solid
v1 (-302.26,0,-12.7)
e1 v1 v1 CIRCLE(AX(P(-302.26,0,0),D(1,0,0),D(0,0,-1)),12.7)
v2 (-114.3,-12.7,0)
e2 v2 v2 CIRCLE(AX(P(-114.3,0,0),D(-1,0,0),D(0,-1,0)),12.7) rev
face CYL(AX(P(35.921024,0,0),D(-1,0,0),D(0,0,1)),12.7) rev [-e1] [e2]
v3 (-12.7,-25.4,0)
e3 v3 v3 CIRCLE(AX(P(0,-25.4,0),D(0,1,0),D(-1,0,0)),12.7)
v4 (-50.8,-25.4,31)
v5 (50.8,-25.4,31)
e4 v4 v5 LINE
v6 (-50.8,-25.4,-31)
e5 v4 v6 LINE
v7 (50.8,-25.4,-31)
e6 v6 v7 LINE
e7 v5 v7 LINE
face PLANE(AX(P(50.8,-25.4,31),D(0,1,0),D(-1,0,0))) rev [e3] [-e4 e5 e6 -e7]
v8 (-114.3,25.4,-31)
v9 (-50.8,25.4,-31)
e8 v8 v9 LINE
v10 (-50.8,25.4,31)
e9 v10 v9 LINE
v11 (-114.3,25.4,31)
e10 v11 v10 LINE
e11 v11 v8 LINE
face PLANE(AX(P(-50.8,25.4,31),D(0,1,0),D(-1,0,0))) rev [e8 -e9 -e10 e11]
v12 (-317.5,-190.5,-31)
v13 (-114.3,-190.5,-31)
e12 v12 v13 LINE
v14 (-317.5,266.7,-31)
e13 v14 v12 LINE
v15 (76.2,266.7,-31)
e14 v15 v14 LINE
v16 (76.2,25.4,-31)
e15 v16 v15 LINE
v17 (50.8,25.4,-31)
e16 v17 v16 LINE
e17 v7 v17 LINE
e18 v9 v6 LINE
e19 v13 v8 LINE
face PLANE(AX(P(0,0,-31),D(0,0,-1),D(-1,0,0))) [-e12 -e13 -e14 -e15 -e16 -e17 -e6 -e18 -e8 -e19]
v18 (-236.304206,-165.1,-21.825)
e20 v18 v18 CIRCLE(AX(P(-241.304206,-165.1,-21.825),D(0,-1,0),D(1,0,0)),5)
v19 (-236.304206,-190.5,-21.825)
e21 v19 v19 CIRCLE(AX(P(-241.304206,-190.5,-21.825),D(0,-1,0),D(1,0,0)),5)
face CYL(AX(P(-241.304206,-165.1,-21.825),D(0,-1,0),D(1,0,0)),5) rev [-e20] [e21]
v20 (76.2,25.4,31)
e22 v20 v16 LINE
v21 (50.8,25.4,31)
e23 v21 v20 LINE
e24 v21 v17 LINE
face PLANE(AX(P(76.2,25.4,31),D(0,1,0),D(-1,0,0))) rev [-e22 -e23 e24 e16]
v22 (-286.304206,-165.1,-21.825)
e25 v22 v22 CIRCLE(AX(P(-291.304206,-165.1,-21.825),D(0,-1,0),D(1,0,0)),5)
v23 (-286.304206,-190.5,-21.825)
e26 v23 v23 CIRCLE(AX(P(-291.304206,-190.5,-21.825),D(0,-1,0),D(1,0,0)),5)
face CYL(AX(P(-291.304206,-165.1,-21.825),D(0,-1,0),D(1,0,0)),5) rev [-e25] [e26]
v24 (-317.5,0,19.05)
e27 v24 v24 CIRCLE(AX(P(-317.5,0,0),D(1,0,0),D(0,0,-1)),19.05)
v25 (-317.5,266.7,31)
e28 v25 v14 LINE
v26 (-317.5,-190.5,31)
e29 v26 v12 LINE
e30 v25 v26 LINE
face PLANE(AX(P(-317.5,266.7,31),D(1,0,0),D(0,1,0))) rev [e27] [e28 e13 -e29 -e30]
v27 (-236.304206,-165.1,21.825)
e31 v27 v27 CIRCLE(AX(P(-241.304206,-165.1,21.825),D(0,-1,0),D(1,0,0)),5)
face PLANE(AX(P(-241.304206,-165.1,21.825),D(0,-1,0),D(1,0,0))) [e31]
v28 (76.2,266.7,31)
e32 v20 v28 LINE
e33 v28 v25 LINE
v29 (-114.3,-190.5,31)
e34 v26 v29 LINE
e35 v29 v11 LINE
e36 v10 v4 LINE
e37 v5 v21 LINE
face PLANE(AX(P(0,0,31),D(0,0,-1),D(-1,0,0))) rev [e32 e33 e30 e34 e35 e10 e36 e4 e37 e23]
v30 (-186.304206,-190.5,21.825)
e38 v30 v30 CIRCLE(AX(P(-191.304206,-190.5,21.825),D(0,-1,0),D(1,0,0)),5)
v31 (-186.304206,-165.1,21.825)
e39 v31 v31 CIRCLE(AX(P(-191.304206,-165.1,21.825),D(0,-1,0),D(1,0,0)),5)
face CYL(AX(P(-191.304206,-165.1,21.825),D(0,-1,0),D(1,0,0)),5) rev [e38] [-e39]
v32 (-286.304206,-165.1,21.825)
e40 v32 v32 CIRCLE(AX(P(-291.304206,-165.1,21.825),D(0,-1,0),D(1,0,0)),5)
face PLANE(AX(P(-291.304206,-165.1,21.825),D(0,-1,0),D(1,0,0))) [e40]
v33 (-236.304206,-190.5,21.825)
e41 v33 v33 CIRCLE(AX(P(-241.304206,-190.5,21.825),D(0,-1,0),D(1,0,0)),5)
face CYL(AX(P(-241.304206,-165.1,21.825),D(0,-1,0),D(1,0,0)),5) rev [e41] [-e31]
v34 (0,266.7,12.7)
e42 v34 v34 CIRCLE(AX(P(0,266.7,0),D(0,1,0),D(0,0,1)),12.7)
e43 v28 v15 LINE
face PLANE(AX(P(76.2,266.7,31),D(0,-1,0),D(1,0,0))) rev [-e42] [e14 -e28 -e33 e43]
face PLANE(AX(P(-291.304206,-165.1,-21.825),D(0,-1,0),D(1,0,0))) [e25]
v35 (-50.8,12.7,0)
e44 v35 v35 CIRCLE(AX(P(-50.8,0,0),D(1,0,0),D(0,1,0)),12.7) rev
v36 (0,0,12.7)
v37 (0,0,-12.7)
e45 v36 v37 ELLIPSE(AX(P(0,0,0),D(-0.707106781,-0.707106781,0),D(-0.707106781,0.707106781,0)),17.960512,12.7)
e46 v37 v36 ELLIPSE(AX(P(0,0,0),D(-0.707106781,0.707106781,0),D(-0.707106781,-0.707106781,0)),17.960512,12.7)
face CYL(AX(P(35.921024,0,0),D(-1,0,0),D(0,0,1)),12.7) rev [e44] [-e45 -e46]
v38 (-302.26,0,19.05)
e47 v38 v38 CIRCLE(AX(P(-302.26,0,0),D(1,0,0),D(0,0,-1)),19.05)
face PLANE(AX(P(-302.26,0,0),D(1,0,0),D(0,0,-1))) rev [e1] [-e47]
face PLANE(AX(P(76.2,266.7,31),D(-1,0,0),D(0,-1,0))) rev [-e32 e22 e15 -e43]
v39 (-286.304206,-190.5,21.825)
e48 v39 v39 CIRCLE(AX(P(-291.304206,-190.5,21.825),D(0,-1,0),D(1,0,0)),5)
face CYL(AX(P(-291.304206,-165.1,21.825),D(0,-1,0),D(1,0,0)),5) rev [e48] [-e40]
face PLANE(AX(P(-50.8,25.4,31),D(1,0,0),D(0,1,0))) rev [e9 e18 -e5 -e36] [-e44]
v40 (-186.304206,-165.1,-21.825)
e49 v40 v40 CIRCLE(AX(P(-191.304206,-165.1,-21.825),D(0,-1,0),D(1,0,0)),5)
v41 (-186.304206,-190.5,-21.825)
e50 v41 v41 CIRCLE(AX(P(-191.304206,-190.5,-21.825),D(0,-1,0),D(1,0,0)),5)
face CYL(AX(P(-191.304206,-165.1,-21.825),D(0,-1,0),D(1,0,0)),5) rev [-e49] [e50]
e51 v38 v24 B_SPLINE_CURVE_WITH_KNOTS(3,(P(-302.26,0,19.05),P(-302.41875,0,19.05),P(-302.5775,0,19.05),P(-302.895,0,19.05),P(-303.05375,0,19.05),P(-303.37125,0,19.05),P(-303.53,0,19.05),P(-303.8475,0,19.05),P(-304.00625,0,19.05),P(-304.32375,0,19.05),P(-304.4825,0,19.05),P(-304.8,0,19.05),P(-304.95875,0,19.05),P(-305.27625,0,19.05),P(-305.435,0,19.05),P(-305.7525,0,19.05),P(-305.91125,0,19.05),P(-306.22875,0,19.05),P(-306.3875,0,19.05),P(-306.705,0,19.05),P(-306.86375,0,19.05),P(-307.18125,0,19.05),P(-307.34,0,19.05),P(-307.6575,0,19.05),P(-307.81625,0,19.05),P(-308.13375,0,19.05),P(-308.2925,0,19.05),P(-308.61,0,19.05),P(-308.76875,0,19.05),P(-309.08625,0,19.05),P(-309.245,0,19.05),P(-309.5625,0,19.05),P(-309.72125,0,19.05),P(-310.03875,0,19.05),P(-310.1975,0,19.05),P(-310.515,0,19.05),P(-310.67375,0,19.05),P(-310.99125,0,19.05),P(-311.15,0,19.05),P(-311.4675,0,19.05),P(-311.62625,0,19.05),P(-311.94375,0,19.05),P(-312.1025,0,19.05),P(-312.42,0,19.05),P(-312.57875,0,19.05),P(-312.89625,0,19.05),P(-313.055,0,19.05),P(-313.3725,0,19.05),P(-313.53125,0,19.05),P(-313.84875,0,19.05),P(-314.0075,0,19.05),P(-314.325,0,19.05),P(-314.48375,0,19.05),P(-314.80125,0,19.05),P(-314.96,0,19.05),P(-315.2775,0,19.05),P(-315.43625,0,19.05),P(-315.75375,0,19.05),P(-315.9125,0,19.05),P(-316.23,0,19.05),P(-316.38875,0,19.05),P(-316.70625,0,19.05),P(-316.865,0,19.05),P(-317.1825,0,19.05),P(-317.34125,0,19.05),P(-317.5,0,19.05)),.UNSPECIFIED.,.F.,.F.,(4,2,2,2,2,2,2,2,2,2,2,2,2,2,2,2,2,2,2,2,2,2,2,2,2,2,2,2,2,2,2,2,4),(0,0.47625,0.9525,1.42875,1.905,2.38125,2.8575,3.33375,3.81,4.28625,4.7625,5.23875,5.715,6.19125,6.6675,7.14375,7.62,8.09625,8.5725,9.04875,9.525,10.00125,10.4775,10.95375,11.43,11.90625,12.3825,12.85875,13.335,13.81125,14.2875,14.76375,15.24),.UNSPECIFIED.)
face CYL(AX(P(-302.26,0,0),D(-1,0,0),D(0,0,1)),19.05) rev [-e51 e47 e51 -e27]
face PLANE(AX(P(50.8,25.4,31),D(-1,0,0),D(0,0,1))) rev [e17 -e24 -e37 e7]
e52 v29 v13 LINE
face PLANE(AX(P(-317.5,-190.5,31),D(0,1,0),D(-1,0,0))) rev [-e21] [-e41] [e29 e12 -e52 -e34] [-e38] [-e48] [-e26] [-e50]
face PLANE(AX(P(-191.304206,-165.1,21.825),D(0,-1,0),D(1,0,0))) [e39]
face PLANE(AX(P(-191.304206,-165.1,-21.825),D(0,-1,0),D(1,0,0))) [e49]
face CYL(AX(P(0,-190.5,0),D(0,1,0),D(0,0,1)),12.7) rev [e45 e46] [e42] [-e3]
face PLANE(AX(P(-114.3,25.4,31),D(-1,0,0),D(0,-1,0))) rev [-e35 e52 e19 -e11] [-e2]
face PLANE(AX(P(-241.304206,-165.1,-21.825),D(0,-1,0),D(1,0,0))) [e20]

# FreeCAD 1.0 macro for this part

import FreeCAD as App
import Part
import Sketcher
from FreeCAD import Vector
Q = App.Units.Quantity

doc = App.newDocument("Part")
body = doc.addObject("PartDesign::Body", "Body")

sketch1 = body.newObject("Sketcher::SketchObject", "Sketch")
sketch1.AttachmentSupport = (doc.getObject("XY_Plane"), [""])
sketch1.MapMode = "FlatFace"
sketch1.addGeometry([
    Part.LineSegment(Vector(76, 267, 0), Vector(-318, 267, 0)),
    Part.LineSegment(Vector(-318, 267, 0), Vector(-318, -190, 0)),
    Part.LineSegment(Vector(-318, -190, 0), Vector(-114, -190, 0)),
    Part.LineSegment(Vector(-114, -190, 0), Vector(-114, 25, 0)),
    Part.LineSegment(Vector(-114, 25, 0), Vector(-51, 25, 0)),
    Part.LineSegment(Vector(-51, 25, 0), Vector(-51, -25, 0)),
    Part.LineSegment(Vector(-51, -25, 0), Vector(51, -25, 0)),
    Part.LineSegment(Vector(51, -25, 0), Vector(51, 25, 0)),
    Part.LineSegment(Vector(51, 25, 0), Vector(76, 25, 0)),
    Part.LineSegment(Vector(76, 25, 0), Vector(76, 267, 0)),
], False)
sketch1.addConstraint([
    Sketcher.Constraint("Coincident", 0, 2, 1, 1),
    Sketcher.Constraint("Coincident", 1, 2, 2, 1),
    Sketcher.Constraint("Coincident", 2, 2, 3, 1),
    Sketcher.Constraint("Coincident", 3, 2, 4, 1),
    Sketcher.Constraint("Coincident", 4, 2, 5, 1),
    Sketcher.Constraint("Coincident", 5, 2, 6, 1),
    Sketcher.Constraint("Coincident", 6, 2, 7, 1),
    Sketcher.Constraint("Coincident", 7, 2, 8, 1),
    Sketcher.Constraint("Coincident", 8, 2, 9, 1),
    Sketcher.Constraint("Coincident", 9, 2, 0, 1),
    Sketcher.Constraint("Horizontal", 0),
    Sketcher.Constraint("Vertical", 1),
    Sketcher.Constraint("Horizontal", 2),
    Sketcher.Constraint("Vertical", 3),
    Sketcher.Constraint("Horizontal", 4),
    Sketcher.Constraint("Vertical", 5),
    Sketcher.Constraint("Horizontal", 6),
    Sketcher.Constraint("Vertical", 7),
    Sketcher.Constraint("Horizontal", 8),
    Sketcher.Constraint("Vertical", 9),
    Sketcher.Constraint("Symmetric", 4, 2, 6, 2, -1, 1),
    Sketcher.Constraint("Horizontal", 4, 2, 7, 2),
    Sketcher.Constraint("DistanceX", 2, 1, 2, 2, Q("8 in")),
    Sketcher.Constraint("DistanceX", 6, 1, 6, 2, Q("4 in")),
    Sketcher.Constraint("DistanceX", 8, 1, 8, 2, Q("1 in")),
    Sketcher.Constraint("DistanceY", 1, 2, 1, 1, Q("18 in")),
    Sketcher.Constraint("DistanceY", 5, 2, 5, 1, Q("2 in")),
    Sketcher.Constraint("DistanceX", 0, 2, 0, 1, Q("15.5 in")),
    Sketcher.Constraint("DistanceY", 3, 1, 3, 2, Q("8.5 in")),
])
pad1 = body.newObject("PartDesign::Pad", "Pad")
pad1.Profile = sketch1
pad1.Length = 62
pad1.Midplane = True

sketch2 = body.newObject("Sketcher::SketchObject", "Sketch001")
sketch2.AttachmentSupport = (doc.getObject("YZ_Plane"), [""])
sketch2.MapMode = "FlatFace"
sketch2.AttachmentOffset = App.Placement(Vector(0, 0, -12.5 * 25.4), App.Rotation())
sketch2.addGeometry(Part.Circle(Vector(0, 0, 0), Vector(0, 0, 1), 13), False)
sketch2.addConstraint([
    Sketcher.Constraint("Coincident", 0, 3, -1, 1),
    Sketcher.Constraint("Diameter", 0, Q("1 in")),
])
pocket1 = body.newObject("PartDesign::Pocket", "Pocket")
pocket1.Profile = sketch2
pocket1.Length = Q("12.5 in")
pocket1.Reversed = True

sketch3 = body.newObject("Sketcher::SketchObject", "Sketch002")
sketch3.AttachmentSupport = (doc.getObject("XZ_Plane"), [""])
sketch3.MapMode = "FlatFace"
sketch3.addGeometry(Part.Circle(Vector(0, 0, 0), Vector(0, 0, 1), 13), False)
sketch3.addConstraint([
    Sketcher.Constraint("Coincident", 0, 3, -1, 1),
    Sketcher.Constraint("Diameter", 0, Q("1 in")),
])
pocket2 = body.newObject("PartDesign::Pocket", "Pocket001")
pocket2.Profile = sketch3
pocket2.Type = "ThroughAll"
pocket2.Midplane = True

sketch4 = body.newObject("Sketcher::SketchObject", "Sketch003")
sketch4.AttachmentSupport = (doc.getObject("YZ_Plane"), [""])
sketch4.MapMode = "FlatFace"
sketch4.AttachmentOffset = App.Placement(Vector(0, 0, -12.5 * 25.4), App.Rotation())
sketch4.addGeometry(Part.Circle(Vector(0, 0, 0), Vector(0, 0, 1), 19), False)
sketch4.addConstraint([
    Sketcher.Constraint("Coincident", 0, 3, -1, 1),
    Sketcher.Constraint("Diameter", 0, Q("1.5 in")),
])
pocket3 = body.newObject("PartDesign::Pocket", "Pocket002")
pocket3.Profile = sketch4
pocket3.Length = Q("0.6 in")
pocket3.Reversed = True

sketch5 = body.newObject("Sketcher::SketchObject", "Sketch004")
sketch5.AttachmentSupport = (doc.getObject("XZ_Plane"), [""])
sketch5.MapMode = "FlatFace"
sketch5.AttachmentOffset = App.Placement(Vector(0, 0, 7.5 * 25.4), App.Rotation())
sketch5.addGeometry([
    Part.Circle(Vector(-291, 22, 0), Vector(0, 0, 1), 5),
    Part.Circle(Vector(-291, -22, 0), Vector(0, 0, 1), 5),
    Part.Circle(Vector(-241, 22, 0), Vector(0, 0, 1), 5),
    Part.Circle(Vector(-241, -22, 0), Vector(0, 0, 1), 5),
    Part.Circle(Vector(-191, 22, 0), Vector(0, 0, 1), 5),
    Part.Circle(Vector(-191, -22, 0), Vector(0, 0, 1), 5),
], False)
sketch5.addConstraint([
    Sketcher.Constraint("Equal", 0, 1),
    Sketcher.Constraint("Equal", 1, 2),
    Sketcher.Constraint("Equal", 2, 3),
    Sketcher.Constraint("Equal", 3, 4),
    Sketcher.Constraint("Equal", 4, 5),
    Sketcher.Constraint("Symmetric", 0, 3, 1, 3, -1),
    Sketcher.Constraint("Symmetric", 2, 3, 3, 3, -1),
    Sketcher.Constraint("Symmetric", 4, 3, 5, 3, -1),
    Sketcher.Constraint("Horizontal", 0, 3, 2, 3),
    Sketcher.Constraint("Horizontal", 2, 3, 4, 3),
    Sketcher.Constraint("Diameter", 0, Q("10 mm")),
    Sketcher.Constraint("DistanceY", -1, 1, 0, 3, Q("21.825 mm")),
    Sketcher.Constraint("DistanceX", 0, 3, 2, 3, Q("50 mm")),
    Sketcher.Constraint("DistanceX", 2, 3, 4, 3, Q("50 mm")),
    Sketcher.Constraint("DistanceX", 0, 3, -1, 1, Q("291.304206 mm")),
])
pocket4 = body.newObject("PartDesign::Pocket", "Pocket003")
pocket4.Profile = sketch5
pocket4.Length = Q("1 in")

doc.recompute()
